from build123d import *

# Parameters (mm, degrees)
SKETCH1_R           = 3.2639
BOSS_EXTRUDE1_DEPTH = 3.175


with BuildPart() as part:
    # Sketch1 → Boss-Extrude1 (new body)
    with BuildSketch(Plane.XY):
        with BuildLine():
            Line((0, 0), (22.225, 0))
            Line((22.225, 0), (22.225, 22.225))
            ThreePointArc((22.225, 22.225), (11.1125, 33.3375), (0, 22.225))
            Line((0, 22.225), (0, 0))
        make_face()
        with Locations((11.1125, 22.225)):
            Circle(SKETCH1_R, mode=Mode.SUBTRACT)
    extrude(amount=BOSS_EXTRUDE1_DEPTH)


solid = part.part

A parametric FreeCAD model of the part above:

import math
import FreeCAD as App
import Part
import Sketcher
Q = App.Units.Quantity

doc = App.newDocument("Part")
body = doc.addObject("PartDesign::Body", "Body")

# Sketch on XY plane
sketch1 = body.newObject("Sketcher::SketchObject", "Sketch")
sketch1.AttachmentSupport = (doc.getObject("XY_Plane"), [""])
sketch1.MapMode = "FlatFace"
sketch1.addGeometry([
    Part.LineSegment(App.Vector(0, 0, 0), App.Vector(22.2, 0, 0)),  # 0
    Part.LineSegment(App.Vector(22.2, 0, 0), App.Vector(22.2, 22.2, 0)),  # 1
    Part.ArcOfCircle(Part.Circle(App.Vector(11.1, 22.2, 0), App.Vector(0, 0, 1), 11.1), math.radians(0), math.radians(180)),  # 2
    Part.LineSegment(App.Vector(0, 22.2, 0), App.Vector(0, 0, 0)),  # 3
    Part.Circle(App.Vector(11.1, 22.2, 0), App.Vector(0, 0, 1), 3.3),  # 4
], False)
sketch1.addConstraint([
    Sketcher.Constraint("Coincident", 0, 2, 1, 1),
    Sketcher.Constraint("Tangent", 1, 2, 2, 1),
    Sketcher.Constraint("Tangent", 2, 2, 3, 1),
    Sketcher.Constraint("Coincident", 3, 2, 0, 1),
    Sketcher.Constraint("Horizontal", 0),
    Sketcher.Constraint("Vertical", 1),
    Sketcher.Constraint("Vertical", 3),
    Sketcher.Constraint("Coincident", 3, 2, -1, 1),
    Sketcher.Constraint("Coincident", 4, 3, 2, 3),
    Sketcher.Constraint("Equal", 0, 1),
    Sketcher.Constraint("Diameter", 4, Q("0.257 in")),
    Sketcher.Constraint("Radius", 2, Q("0.4375 in")),
])
pad1 = body.newObject("PartDesign::Pad", "Pad")
pad1.Profile = sketch1
pad1.Length = Q("0.125 in")

doc.recompute()
